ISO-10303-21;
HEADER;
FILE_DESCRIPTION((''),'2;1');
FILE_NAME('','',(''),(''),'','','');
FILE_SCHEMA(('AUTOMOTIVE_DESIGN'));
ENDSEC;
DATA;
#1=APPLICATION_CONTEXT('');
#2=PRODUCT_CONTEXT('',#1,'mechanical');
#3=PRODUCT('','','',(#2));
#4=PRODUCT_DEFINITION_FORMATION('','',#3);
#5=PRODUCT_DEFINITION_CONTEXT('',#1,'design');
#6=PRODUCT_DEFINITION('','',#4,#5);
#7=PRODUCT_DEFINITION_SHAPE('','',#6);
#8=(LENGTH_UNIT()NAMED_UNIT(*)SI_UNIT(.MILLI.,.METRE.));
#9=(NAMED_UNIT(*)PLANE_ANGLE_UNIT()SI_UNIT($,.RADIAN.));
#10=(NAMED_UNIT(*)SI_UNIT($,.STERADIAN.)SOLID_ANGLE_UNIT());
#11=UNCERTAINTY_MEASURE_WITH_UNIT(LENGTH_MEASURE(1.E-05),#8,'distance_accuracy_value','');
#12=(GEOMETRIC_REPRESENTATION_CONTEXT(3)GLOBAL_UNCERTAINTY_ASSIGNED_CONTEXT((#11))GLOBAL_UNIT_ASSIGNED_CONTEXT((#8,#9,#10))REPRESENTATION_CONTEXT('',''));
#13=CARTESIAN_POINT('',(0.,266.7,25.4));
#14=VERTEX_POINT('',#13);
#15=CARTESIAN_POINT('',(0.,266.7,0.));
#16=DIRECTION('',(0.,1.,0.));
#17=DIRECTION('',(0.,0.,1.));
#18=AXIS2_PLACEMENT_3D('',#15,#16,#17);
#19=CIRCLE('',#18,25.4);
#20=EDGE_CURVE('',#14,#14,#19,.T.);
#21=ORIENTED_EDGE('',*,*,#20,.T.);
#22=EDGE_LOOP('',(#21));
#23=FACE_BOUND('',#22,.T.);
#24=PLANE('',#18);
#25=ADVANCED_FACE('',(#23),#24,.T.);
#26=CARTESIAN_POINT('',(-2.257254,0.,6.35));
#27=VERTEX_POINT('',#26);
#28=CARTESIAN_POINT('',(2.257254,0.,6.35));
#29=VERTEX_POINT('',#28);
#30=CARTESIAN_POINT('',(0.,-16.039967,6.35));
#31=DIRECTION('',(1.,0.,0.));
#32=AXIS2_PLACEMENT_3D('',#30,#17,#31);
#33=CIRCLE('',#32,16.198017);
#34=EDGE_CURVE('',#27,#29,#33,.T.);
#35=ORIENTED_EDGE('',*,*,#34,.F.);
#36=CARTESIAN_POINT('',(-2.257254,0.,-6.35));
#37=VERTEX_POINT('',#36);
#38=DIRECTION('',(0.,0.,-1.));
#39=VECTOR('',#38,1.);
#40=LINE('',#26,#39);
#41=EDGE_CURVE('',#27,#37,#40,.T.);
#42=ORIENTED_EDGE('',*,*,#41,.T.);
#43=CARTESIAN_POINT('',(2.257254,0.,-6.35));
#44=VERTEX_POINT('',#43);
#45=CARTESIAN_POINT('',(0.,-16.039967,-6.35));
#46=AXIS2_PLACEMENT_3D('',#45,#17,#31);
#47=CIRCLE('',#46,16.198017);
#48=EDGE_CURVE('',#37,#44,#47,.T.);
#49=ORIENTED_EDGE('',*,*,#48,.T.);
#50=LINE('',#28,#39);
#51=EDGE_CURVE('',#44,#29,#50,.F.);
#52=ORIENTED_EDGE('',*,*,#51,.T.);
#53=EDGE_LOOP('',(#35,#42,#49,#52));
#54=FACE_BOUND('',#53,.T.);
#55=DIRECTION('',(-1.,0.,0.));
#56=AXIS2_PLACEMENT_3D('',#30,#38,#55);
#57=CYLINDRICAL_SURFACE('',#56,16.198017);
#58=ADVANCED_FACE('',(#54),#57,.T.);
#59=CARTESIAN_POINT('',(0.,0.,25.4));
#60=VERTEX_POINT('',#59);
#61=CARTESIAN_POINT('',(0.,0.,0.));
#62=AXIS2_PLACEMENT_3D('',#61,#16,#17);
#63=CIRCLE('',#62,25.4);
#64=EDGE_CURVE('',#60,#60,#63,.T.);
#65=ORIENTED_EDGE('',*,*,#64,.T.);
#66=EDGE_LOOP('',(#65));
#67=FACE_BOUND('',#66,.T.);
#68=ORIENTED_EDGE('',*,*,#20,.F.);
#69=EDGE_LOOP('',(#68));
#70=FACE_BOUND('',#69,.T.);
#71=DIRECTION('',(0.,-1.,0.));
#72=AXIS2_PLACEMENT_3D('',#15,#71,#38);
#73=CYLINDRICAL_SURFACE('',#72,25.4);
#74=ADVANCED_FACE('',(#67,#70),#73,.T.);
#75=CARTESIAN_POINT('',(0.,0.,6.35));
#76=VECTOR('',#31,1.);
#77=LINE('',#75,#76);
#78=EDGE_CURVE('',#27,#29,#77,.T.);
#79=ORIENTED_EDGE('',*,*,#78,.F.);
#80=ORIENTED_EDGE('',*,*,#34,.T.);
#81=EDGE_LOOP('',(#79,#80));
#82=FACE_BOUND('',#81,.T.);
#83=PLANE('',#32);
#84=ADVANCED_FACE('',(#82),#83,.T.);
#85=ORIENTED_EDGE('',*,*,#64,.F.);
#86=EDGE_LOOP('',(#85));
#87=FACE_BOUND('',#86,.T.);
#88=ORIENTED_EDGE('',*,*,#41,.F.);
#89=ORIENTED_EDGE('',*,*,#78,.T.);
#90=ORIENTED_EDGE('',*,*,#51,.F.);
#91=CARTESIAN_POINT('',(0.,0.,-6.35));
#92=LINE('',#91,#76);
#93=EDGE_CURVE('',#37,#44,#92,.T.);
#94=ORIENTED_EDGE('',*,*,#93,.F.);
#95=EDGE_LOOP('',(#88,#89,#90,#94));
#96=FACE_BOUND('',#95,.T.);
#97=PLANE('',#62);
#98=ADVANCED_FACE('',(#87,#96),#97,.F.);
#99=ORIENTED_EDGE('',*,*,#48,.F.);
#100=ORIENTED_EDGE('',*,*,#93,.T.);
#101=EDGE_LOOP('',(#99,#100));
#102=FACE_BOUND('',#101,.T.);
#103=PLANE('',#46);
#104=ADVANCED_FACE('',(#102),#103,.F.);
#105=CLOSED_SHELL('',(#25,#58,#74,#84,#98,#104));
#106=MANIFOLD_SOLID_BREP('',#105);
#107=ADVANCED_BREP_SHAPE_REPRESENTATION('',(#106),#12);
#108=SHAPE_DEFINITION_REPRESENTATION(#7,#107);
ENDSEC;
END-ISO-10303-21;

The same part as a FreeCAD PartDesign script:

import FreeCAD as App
import Part
import Sketcher
from FreeCAD import Vector
Q = App.Units.Quantity

doc = App.newDocument("Part")
body = doc.addObject("PartDesign::Body", "Body")

sketch1 = body.newObject("Sketcher::SketchObject", "Sketch")
sketch1.AttachmentSupport = (doc.getObject("XZ_Plane"), [""])
sketch1.MapMode = "FlatFace"
sketch1.addGeometry(Part.Circle(Vector(0, 0, 0), Vector(0, 0, 1), 25), False)
sketch1.addConstraint([
    Sketcher.Constraint("Coincident", 0, 3, -1, 1),
    Sketcher.Constraint("Diameter", 0, Q("2 in")),
])
pad1 = body.newObject("PartDesign::Pad", "Pad")
pad1.Profile = sketch1
pad1.Length = Q("10.5 in")
pad1.Reversed = True

sketch2 = body.newObject("Sketcher::SketchObject", "Sketch001")
sketch2.AttachmentSupport = (doc.getObject("XY_Plane"), [""])
sketch2.MapMode = "FlatFace"
sketch2.addGeometry(Part.Circle(Vector(0, -16, 0), Vector(0, 0, 1), 16), False)
sketch2.addConstraint([
    Sketcher.Constraint("PointOnObject", 0, 3, -2),
    Sketcher.Constraint("Diameter", 0, Q("32.396034 mm")),
    Sketcher.Constraint("DistanceY", 0, 3, -1, 1, Q("16.039967 mm")),
])
pad2 = body.newObject("PartDesign::Pad", "Pad001")
pad2.Profile = sketch2
pad2.Length = Q("0.5 in")
pad2.Midplane = True

doc.recompute()
